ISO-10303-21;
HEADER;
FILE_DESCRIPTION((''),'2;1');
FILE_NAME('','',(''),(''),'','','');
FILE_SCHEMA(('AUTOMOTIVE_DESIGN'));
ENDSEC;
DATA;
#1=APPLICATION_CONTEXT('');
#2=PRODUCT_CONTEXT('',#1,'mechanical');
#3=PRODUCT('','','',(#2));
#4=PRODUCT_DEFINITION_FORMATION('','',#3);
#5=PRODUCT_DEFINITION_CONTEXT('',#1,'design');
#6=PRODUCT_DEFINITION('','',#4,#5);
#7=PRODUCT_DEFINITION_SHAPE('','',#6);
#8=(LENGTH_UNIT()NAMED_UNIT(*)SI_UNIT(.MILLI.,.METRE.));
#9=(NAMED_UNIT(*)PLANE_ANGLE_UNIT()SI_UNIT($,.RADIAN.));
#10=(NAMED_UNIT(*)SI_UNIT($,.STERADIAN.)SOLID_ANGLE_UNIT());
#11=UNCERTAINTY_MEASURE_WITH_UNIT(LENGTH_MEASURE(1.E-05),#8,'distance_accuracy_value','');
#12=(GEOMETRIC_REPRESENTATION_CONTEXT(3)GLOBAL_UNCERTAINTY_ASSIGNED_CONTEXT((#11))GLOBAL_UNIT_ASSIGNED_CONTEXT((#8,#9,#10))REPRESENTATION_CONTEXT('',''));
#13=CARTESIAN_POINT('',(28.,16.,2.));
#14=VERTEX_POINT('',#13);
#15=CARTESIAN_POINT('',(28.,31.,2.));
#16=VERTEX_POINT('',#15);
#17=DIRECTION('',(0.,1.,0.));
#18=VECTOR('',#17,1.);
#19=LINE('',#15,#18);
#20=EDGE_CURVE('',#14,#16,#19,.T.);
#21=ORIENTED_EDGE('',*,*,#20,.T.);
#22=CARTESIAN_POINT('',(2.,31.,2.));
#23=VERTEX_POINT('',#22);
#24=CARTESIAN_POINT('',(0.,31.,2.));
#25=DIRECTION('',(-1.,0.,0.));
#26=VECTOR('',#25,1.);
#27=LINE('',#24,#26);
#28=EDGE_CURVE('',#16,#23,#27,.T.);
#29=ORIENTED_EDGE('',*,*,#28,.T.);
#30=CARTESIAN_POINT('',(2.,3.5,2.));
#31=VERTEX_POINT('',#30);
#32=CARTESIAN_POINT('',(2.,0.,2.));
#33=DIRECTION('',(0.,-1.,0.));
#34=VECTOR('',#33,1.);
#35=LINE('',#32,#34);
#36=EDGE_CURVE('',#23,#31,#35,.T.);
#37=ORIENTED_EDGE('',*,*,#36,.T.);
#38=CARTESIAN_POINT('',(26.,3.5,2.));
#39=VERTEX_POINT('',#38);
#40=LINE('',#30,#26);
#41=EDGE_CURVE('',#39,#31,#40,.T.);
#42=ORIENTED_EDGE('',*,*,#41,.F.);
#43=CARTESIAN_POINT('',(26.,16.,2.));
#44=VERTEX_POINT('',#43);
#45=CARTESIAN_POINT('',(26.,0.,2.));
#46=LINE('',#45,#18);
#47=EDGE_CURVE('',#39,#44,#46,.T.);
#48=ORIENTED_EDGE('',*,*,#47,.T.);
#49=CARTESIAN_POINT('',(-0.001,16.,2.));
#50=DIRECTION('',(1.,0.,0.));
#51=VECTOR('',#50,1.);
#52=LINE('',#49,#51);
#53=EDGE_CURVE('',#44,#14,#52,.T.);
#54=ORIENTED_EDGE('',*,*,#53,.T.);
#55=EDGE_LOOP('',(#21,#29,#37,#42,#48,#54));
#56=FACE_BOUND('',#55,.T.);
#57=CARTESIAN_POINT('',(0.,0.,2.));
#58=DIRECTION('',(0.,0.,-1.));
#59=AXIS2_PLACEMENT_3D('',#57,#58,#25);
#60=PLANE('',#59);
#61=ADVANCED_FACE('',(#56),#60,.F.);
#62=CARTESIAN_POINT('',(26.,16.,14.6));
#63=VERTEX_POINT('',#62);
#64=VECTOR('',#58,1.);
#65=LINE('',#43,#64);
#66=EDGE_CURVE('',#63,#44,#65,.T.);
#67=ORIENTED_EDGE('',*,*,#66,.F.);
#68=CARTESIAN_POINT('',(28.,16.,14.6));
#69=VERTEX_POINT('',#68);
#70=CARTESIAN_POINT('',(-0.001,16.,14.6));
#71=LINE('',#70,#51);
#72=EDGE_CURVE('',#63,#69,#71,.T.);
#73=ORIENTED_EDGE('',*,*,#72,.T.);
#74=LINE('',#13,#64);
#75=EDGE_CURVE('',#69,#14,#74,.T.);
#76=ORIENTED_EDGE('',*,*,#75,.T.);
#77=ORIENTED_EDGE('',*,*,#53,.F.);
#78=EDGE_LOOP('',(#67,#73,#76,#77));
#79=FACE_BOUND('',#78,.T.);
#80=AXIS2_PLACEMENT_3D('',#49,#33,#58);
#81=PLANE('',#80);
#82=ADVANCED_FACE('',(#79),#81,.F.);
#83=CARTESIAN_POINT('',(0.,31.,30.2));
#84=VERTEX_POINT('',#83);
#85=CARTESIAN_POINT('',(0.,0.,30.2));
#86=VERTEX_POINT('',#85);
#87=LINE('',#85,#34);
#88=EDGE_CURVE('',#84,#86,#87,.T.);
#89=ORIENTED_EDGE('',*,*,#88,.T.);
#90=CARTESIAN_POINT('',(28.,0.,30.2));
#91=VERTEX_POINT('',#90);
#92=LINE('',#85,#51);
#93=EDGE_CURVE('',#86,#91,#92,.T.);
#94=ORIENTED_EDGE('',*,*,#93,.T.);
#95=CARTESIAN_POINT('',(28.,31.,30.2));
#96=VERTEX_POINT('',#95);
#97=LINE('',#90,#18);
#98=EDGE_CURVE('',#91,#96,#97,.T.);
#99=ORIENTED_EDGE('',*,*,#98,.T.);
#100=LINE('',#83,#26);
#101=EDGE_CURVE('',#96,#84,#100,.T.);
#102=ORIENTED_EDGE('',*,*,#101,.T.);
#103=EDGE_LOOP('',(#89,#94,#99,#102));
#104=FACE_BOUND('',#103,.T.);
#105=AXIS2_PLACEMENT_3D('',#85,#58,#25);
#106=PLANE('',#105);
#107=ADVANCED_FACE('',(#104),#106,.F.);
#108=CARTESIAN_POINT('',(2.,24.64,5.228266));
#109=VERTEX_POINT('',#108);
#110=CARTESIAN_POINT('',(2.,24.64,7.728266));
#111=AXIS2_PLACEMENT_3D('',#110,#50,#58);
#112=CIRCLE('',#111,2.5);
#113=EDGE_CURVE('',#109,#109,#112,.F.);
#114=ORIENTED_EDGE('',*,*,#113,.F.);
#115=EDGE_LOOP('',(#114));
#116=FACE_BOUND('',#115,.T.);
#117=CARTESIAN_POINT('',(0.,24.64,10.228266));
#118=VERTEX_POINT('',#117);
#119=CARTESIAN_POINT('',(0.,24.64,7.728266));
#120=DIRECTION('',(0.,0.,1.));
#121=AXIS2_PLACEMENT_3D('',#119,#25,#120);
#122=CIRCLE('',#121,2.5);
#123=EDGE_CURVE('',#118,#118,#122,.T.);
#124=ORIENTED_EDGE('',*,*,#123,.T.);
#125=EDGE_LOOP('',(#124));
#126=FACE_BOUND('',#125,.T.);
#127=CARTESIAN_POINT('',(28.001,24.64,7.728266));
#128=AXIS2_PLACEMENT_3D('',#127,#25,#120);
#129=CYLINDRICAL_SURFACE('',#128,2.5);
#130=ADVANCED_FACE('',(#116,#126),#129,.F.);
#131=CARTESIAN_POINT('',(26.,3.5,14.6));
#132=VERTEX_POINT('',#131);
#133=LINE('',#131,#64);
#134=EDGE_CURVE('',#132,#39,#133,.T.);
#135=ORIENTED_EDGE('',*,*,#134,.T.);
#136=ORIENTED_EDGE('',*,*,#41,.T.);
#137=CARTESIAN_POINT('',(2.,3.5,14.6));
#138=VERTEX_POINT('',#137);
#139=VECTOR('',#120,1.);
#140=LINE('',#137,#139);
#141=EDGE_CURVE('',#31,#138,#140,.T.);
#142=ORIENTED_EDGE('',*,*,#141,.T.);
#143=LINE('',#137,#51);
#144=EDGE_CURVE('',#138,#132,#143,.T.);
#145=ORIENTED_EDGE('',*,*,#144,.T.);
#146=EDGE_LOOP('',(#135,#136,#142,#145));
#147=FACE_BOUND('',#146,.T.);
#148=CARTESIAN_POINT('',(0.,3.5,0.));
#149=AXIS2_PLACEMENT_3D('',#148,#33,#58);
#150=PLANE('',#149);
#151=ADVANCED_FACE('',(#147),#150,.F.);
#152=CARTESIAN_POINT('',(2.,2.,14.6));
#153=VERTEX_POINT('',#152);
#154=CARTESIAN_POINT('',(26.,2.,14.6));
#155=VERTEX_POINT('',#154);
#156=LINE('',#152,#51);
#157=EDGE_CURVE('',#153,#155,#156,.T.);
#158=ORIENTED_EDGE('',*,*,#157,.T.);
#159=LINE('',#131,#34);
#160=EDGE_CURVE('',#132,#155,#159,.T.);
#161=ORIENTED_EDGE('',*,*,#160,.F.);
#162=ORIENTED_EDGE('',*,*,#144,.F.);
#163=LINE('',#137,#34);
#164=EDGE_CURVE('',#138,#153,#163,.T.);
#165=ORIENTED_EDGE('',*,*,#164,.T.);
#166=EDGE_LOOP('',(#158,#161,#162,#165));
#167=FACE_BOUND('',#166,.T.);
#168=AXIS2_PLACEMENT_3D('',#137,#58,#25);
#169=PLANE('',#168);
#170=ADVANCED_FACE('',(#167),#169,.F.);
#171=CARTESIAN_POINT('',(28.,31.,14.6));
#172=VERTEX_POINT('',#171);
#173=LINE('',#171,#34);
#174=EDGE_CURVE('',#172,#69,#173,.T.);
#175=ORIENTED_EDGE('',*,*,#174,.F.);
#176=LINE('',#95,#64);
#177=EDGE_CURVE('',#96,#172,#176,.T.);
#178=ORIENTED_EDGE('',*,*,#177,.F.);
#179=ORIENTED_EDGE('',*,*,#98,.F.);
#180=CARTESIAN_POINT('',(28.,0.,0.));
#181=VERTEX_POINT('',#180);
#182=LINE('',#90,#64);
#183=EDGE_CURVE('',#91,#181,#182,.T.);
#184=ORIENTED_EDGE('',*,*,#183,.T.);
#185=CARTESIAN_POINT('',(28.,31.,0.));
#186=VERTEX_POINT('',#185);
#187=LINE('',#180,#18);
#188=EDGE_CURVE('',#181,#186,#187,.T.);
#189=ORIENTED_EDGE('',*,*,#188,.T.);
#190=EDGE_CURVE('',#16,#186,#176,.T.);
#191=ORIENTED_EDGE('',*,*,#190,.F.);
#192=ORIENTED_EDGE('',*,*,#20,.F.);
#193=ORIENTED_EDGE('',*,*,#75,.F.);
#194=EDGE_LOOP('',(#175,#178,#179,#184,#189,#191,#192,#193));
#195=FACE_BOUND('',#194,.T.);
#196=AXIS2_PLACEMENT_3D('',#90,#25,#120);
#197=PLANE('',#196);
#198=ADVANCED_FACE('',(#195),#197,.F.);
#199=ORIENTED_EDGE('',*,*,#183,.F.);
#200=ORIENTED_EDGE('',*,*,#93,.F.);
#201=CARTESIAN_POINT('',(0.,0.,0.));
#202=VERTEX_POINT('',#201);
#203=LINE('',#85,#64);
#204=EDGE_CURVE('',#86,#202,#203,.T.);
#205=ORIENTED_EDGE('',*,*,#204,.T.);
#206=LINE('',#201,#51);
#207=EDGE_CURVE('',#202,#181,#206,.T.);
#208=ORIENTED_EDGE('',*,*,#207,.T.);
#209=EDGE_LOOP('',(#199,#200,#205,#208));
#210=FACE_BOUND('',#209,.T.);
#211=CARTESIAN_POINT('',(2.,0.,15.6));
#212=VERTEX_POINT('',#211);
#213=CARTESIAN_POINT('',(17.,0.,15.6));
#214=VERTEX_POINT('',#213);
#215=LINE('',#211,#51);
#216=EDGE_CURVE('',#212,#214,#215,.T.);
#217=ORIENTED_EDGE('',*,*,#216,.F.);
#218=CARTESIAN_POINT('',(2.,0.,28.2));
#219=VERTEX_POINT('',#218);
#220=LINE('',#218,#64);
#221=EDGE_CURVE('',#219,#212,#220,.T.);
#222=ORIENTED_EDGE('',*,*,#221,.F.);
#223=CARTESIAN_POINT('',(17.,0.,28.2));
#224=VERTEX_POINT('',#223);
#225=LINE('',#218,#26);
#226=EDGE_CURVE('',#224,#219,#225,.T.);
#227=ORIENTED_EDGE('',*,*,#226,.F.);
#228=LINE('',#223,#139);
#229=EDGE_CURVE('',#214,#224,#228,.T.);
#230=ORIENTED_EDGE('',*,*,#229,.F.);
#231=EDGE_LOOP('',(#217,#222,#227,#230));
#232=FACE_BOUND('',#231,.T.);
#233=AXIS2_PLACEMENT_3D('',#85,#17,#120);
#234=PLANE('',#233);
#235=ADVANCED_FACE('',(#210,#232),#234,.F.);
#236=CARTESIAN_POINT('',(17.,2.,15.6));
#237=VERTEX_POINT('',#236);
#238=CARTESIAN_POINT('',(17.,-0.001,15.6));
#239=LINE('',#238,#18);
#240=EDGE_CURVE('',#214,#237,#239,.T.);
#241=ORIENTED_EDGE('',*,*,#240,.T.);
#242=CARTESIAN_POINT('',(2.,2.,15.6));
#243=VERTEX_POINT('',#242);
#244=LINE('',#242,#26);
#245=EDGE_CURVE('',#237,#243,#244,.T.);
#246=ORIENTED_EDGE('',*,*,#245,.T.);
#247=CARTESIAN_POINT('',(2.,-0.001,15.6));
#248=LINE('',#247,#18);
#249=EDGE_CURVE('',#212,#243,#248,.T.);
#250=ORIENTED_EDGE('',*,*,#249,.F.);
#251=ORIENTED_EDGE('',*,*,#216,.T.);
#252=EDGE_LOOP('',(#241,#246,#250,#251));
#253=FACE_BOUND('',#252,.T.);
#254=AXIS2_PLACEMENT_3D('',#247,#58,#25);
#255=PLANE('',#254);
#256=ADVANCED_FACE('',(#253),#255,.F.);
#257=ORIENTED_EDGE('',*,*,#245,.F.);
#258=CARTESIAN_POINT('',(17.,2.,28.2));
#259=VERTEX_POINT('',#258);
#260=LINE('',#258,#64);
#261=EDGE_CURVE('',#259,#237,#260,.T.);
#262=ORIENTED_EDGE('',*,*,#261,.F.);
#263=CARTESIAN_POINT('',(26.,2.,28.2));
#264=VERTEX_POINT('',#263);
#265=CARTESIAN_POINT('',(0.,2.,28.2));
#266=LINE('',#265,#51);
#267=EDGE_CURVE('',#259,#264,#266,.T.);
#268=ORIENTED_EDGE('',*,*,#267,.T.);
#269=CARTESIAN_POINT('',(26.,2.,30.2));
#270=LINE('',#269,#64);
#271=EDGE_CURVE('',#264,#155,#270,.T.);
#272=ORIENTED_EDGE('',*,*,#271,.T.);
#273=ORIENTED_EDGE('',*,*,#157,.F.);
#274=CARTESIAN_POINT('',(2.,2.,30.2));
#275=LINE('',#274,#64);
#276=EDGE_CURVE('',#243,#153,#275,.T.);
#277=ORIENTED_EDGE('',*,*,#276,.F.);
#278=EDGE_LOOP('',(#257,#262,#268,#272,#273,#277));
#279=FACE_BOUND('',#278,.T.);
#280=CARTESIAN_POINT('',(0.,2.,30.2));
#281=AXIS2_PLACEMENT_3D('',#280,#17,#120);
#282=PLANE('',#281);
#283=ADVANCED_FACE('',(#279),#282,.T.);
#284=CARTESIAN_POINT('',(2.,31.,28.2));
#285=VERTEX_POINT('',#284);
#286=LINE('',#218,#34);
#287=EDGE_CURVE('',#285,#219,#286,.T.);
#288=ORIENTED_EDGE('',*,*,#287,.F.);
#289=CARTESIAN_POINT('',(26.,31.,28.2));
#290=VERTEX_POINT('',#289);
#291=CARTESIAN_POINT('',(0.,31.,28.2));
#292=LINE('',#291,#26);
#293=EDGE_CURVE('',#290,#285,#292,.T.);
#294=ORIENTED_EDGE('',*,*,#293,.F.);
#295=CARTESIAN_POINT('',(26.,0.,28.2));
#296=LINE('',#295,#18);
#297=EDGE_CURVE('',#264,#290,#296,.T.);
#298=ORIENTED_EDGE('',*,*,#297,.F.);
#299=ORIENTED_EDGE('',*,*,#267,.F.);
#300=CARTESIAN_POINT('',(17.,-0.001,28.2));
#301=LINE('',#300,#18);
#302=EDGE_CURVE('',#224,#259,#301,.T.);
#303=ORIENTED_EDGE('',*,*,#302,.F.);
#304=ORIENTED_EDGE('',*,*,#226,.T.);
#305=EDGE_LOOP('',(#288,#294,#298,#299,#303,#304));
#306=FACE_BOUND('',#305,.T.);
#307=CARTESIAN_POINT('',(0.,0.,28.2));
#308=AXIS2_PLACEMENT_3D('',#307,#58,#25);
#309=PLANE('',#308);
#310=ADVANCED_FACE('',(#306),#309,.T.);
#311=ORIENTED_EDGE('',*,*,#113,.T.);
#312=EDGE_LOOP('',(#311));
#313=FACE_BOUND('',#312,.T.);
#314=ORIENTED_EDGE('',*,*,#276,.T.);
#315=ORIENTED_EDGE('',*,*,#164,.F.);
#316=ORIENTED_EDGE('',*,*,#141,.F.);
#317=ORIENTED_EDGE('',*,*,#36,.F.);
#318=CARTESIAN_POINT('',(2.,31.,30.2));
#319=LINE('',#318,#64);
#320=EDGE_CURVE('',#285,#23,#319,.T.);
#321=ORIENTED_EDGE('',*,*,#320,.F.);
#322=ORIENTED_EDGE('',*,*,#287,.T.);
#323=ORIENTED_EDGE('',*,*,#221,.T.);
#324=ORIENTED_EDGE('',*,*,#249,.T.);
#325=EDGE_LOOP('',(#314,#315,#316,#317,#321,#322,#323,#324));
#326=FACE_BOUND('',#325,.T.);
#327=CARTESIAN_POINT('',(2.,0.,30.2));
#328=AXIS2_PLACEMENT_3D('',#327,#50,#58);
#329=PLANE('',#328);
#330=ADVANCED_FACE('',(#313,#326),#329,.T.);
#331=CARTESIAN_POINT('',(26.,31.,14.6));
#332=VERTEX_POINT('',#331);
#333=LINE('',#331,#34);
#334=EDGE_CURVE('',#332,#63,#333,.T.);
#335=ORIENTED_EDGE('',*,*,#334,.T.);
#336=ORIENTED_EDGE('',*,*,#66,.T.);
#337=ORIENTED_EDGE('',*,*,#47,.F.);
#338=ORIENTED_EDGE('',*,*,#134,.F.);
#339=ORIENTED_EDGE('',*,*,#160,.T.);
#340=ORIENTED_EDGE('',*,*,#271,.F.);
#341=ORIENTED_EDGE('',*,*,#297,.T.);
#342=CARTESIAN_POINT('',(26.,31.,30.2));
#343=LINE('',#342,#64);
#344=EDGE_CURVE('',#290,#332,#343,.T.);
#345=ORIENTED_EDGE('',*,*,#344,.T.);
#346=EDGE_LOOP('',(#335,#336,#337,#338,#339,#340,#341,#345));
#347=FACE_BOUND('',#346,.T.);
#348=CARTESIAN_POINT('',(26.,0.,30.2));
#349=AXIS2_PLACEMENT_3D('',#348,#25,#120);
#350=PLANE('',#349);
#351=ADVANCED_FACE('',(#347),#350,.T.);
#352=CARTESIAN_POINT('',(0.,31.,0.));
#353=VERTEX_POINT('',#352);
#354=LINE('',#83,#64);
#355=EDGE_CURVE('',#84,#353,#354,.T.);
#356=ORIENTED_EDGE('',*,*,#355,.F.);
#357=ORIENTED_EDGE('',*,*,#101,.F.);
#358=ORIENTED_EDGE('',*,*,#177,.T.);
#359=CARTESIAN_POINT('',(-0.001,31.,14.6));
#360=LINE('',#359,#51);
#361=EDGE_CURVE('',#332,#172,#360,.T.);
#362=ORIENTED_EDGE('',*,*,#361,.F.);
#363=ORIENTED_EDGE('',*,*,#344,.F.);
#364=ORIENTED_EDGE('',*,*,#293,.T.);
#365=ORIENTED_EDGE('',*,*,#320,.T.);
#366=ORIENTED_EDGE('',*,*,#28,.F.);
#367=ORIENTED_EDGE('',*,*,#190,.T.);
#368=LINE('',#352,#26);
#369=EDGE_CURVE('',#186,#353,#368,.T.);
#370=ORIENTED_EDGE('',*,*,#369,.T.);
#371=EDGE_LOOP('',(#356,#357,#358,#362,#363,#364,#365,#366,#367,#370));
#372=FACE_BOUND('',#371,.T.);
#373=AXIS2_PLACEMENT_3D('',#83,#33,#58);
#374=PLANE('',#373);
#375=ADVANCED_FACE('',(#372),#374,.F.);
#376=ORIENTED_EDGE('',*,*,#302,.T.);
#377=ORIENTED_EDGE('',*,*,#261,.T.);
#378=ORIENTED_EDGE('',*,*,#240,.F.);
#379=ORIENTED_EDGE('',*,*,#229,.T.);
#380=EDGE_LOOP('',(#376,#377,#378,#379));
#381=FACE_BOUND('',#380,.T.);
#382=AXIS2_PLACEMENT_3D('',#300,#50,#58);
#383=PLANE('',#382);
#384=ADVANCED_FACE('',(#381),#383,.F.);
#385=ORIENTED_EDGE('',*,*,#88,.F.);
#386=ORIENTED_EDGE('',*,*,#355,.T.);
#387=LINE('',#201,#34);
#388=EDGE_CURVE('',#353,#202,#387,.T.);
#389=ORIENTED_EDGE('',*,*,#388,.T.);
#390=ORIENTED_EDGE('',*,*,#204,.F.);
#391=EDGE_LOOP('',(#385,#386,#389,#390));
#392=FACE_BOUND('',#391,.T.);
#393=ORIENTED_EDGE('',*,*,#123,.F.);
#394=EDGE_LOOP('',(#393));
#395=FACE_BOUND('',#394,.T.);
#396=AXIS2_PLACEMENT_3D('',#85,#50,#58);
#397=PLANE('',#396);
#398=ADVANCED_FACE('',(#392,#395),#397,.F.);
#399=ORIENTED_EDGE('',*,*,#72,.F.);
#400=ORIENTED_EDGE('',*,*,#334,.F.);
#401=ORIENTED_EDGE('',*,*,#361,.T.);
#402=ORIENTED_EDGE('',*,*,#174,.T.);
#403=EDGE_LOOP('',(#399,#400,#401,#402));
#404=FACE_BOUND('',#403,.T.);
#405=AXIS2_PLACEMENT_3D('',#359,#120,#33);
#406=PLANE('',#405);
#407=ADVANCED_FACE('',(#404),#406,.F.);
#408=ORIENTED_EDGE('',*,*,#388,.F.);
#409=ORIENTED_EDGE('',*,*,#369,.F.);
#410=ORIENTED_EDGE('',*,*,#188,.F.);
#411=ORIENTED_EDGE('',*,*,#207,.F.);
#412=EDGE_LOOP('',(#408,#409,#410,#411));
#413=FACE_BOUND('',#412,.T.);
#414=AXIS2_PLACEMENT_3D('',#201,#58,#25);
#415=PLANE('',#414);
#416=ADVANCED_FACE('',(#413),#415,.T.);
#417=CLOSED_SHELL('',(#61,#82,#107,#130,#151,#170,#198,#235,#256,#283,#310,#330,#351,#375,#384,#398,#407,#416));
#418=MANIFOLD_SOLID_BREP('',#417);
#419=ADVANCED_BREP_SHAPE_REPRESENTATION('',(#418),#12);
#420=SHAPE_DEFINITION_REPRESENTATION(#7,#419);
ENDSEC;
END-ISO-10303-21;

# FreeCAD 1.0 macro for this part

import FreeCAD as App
import Part
import Sketcher


def faces_at(feature, points):
    """Names of the faces that lie closest to the given points."""
    faces = feature.Shape.Faces
    near = lambda p: min(range(len(faces)), key=lambda i: faces[i].distToShape(Part.Vertex(*p))[0])
    return sorted({f"Face{near(p) + 1}" for p in points})


def add_polygon(sketch, points):
    """Adds a closed chain of lines whose ends are joined by coincident constraints."""
    first, n = sketch.GeometryCount, len(points)
    for a, b in zip(points, points[1:] + points[:1]):
        sketch.addGeometry(Part.LineSegment(App.Vector(*a, 0), App.Vector(*b, 0)), False)
    for i in range(n):
        sketch.addConstraint(Sketcher.Constraint("Coincident", first + i, 2, first + (i + 1) % n, 1))

doc = App.newDocument("Part")
body = doc.addObject("PartDesign::Body", "Body")

sketch1 = doc.addObject("Sketcher::SketchObject", "Sketch")
body.addObject(sketch1)
sketch1.AttachmentSupport = (doc.XY_Plane, [""])
sketch1.MapMode = "FlatFace"
add_polygon(sketch1, [(0, 31), (0, 0), (28, 0), (28, 31)])
sketch1.addConstraint([
    Sketcher.Constraint("Vertical", 0),
    Sketcher.Constraint("Horizontal", 1),
    Sketcher.Constraint("Vertical", 2),
    Sketcher.Constraint("Horizontal", 3),
    Sketcher.Constraint("Coincident", 0, 2, -1, 1),
    Sketcher.Constraint("DistanceX", 1, 1, 1, 2, 28.0),
    Sketcher.Constraint("DistanceY", 0, 2, 0, 1, 31.0),
])
pad1 = doc.addObject("PartDesign::Pad", "Pad")
body.addObject(pad1)
pad1.Profile = sketch1
pad1.Length = 30.2
doc.recompute()

thickness = doc.addObject("PartDesign::Thickness", "Thickness")
body.addObject(thickness)
thickness.Base = (pad1, faces_at(pad1, [(14, 31, 15.1)]))
thickness.Value = 2
thickness.Reversed = True
thickness.Join = "Intersection"

sketch2 = doc.addObject("Sketcher::SketchObject", "Sketch001")
body.addObject(sketch2)
sketch2.AttachmentSupport = (doc.YZ_Plane, [""])
sketch2.MapMode = "FlatFace"
sketch2.AttachmentOffset = App.Placement(App.Vector(0, 0, 28), App.Rotation())
add_polygon(sketch2, [(31, 15), (16, 15), (16, 2), (31, 2)])
sketch2.addConstraint([
    Sketcher.Constraint("Horizontal", 0),
    Sketcher.Constraint("Vertical", 1),
    Sketcher.Constraint("Horizontal", 2),
    Sketcher.Constraint("Vertical", 3),
    Sketcher.Constraint("DistanceX", 0, 2, 0, 1, 15.0),
    Sketcher.Constraint("DistanceY", 1, 2, 1, 1, 12.6),
    Sketcher.Constraint("DistanceX", -1, 1, 0, 2, 16.0),
    Sketcher.Constraint("DistanceY", -1, 1, 1, 2, 2.0),
])
pocket1 = doc.addObject("PartDesign::Pocket", "Pocket")
body.addObject(pocket1)
pocket1.Profile = sketch2
pocket1.Type = "UpToFirst"

sketch3 = doc.addObject("Sketcher::SketchObject", "Sketch002")
body.addObject(sketch3)
sketch3.AttachmentSupport = (doc.XZ_Plane, [""])
sketch3.MapMode = "FlatFace"
sketch3.AttachmentOffset = App.Placement(App.Vector(0, 0, -2), App.Rotation())
add_polygon(sketch3, [(2, 16), (2, 28), (17, 28), (17, 16)])
sketch3.addConstraint([
    Sketcher.Constraint("Vertical", 0),
    Sketcher.Constraint("Horizontal", 1),
    Sketcher.Constraint("Vertical", 2),
    Sketcher.Constraint("Horizontal", 3),
    Sketcher.Constraint("DistanceX", 1, 1, 1, 2, 15.0),
    Sketcher.Constraint("DistanceY", 0, 1, 0, 2, 12.6),
    Sketcher.Constraint("DistanceX", -1, 1, 0, 2, 2.0),
    Sketcher.Constraint("DistanceY", -1, 1, 0, 2, 28.2),
])
pocket2 = doc.addObject("PartDesign::Pocket", "Pocket001")
body.addObject(pocket2)
pocket2.Profile = sketch3
pocket2.Type = "UpToFirst"
pocket2.Reversed = True

sketch4 = doc.addObject("Sketcher::SketchObject", "Sketch003")
body.addObject(sketch4)
sketch4.AttachmentSupport = (doc.XZ_Plane, [""])
sketch4.MapMode = "FlatFace"
sketch4.AttachmentOffset = App.Placement(App.Vector(0, 0, -2), App.Rotation())
add_polygon(sketch4, [(2, 2), (2, 15), (26, 15), (26, 2)])
sketch4.addConstraint([
    Sketcher.Constraint("Vertical", 0),
    Sketcher.Constraint("Horizontal", 1),
    Sketcher.Constraint("Vertical", 2),
    Sketcher.Constraint("Horizontal", 3),
    Sketcher.Constraint("DistanceX", 1, 1, 1, 2, 24.0),
    Sketcher.Constraint("DistanceY", 0, 1, 0, 2, 12.6),
    Sketcher.Constraint("DistanceX", -1, 1, 0, 2, 2.0),
    Sketcher.Constraint("DistanceY", -1, 1, 2, 2, 2.0),
])
pad2 = doc.addObject("PartDesign::Pad", "Pad001")
body.addObject(pad2)
pad2.Profile = sketch4
pad2.Length = 1.5
pad2.Reversed = True

sketch5 = doc.addObject("Sketcher::SketchObject", "Sketch004")
body.addObject(sketch5)
sketch5.AttachmentSupport = (doc.YZ_Plane, [""])
sketch5.MapMode = "FlatFace"
sketch5.addGeometry(Part.Circle(App.Vector(24.6, 7.7, 0), App.Vector(0, 0, 1), 2.5), False)
sketch5.addConstraint([
    Sketcher.Constraint("Diameter", 0, 5.0),
    Sketcher.Constraint("DistanceX", -1, 1, 0, 3, 24.64),
    Sketcher.Constraint("DistanceY", -1, 1, 0, 3, 7.728266),
])
pocket3 = doc.addObject("PartDesign::Pocket", "Pocket002")
body.addObject(pocket3)
pocket3.Profile = sketch5
pocket3.Type = "UpToFirst"
pocket3.Reversed = True

doc.recompute()
